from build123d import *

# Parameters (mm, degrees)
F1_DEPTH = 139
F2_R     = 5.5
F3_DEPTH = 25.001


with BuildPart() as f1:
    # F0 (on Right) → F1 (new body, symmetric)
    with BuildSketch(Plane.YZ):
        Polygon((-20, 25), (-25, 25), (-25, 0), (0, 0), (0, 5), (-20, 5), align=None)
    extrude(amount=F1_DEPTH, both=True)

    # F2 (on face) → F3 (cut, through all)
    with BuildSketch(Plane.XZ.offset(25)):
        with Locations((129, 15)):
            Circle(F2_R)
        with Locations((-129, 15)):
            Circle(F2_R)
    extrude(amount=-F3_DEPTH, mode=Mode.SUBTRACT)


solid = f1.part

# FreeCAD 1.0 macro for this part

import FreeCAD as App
import Part
import Sketcher


def add_polygon(sketch, points):
    """Adds a closed chain of lines whose ends are joined by coincident constraints."""
    first, n = sketch.GeometryCount, len(points)
    for a, b in zip(points, points[1:] + points[:1]):
        sketch.addGeometry(Part.LineSegment(App.Vector(*a, 0), App.Vector(*b, 0)), False)
    for i in range(n):
        sketch.addConstraint(Sketcher.Constraint("Coincident", first + i, 2, first + (i + 1) % n, 1))

doc = App.newDocument("Part")
params = doc.addObject("Spreadsheet::Sheet", "Params")
for row, (alias, value) in enumerate([
    ("sketch1_width", "5 mm"),
    ("sketch1_width2", "25 mm"),
    ("pad1_length", "278 mm"),
    ("sketch2_diameter", "11 mm"),
], start=1):
    params.set(f"A{row}", alias)
    params.set(f"B{row}", "=" + value)
    params.setAlias(f"B{row}", alias)

body = doc.addObject("PartDesign::Body", "Body")

sketch1 = body.newObject("Sketcher::SketchObject", "Sketch")
sketch1.AttachmentSupport = (doc.getObject("YZ_Plane"), [""])
sketch1.MapMode = "FlatFace"
add_polygon(sketch1, [(-20, 25), (-25, 25), (-25, 0), (0, 0), (0, 5), (-20, 5)])
sketch1.addConstraint(Sketcher.Constraint("Horizontal", 0))
sketch1.addConstraint(Sketcher.Constraint("Vertical", 1))
sketch1.addConstraint(Sketcher.Constraint("Horizontal", 2))
sketch1.addConstraint(Sketcher.Constraint("Vertical", 3))
sketch1.addConstraint(Sketcher.Constraint("Horizontal", 4))
sketch1.addConstraint(Sketcher.Constraint("Vertical", 5))
sketch1.addConstraint(Sketcher.Constraint("Coincident", 2, 2, -1, 1))
sketch1.addConstraint(Sketcher.Constraint("Equal", 2, 1))
sketch1.addConstraint(Sketcher.Constraint("Equal", 0, 3))
sketch1.addConstraint(Sketcher.Constraint("DistanceX", 0, 2, 0, 1, 5.0))
sketch1.addConstraint(Sketcher.Constraint("DistanceX", 2, 1, 2, 2, 25.0))
sketch1.setExpression("Constraints[15]", "Params.sketch1_width")
sketch1.setExpression("Constraints[16]", "Params.sketch1_width2")
pad1 = body.newObject("PartDesign::Pad", "Pad")
pad1.Profile = sketch1
pad1.setExpression("Length", "Params.pad1_length")
pad1.Midplane = True

sketch2 = body.newObject("Sketcher::SketchObject", "Sketch001")
sketch2.AttachmentSupport = (doc.getObject("XZ_Plane"), [""])
sketch2.MapMode = "FlatFace"
sketch2.AttachmentOffset = App.Placement(App.Vector(0, 0, 25), App.Rotation())
sketch2.addGeometry(Part.Circle(App.Vector(129, 15, 0), App.Vector(0, 0, 1), 5.5), False)
sketch2.addGeometry(Part.Circle(App.Vector(-129, 15, 0), App.Vector(0, 0, 1), 5.5), False)
sketch2.addConstraint(Sketcher.Constraint("Equal", 0, 1))
sketch2.addConstraint(Sketcher.Constraint("Symmetric", 0, 3, 1, 3, -2))
sketch2.addConstraint(Sketcher.Constraint("Diameter", 0, 11.0))
sketch2.addConstraint(Sketcher.Constraint("DistanceX", -1, 1, 0, 3, 129.0))
sketch2.addConstraint(Sketcher.Constraint("DistanceY", -1, 1, 0, 3, 15.0))
sketch2.setExpression("Constraints[2]", "Params.sketch2_diameter")
pocket1 = body.newObject("PartDesign::Pocket", "Pocket")
pocket1.Profile = sketch2
pocket1.Type = "ThroughAll"

doc.recompute()
